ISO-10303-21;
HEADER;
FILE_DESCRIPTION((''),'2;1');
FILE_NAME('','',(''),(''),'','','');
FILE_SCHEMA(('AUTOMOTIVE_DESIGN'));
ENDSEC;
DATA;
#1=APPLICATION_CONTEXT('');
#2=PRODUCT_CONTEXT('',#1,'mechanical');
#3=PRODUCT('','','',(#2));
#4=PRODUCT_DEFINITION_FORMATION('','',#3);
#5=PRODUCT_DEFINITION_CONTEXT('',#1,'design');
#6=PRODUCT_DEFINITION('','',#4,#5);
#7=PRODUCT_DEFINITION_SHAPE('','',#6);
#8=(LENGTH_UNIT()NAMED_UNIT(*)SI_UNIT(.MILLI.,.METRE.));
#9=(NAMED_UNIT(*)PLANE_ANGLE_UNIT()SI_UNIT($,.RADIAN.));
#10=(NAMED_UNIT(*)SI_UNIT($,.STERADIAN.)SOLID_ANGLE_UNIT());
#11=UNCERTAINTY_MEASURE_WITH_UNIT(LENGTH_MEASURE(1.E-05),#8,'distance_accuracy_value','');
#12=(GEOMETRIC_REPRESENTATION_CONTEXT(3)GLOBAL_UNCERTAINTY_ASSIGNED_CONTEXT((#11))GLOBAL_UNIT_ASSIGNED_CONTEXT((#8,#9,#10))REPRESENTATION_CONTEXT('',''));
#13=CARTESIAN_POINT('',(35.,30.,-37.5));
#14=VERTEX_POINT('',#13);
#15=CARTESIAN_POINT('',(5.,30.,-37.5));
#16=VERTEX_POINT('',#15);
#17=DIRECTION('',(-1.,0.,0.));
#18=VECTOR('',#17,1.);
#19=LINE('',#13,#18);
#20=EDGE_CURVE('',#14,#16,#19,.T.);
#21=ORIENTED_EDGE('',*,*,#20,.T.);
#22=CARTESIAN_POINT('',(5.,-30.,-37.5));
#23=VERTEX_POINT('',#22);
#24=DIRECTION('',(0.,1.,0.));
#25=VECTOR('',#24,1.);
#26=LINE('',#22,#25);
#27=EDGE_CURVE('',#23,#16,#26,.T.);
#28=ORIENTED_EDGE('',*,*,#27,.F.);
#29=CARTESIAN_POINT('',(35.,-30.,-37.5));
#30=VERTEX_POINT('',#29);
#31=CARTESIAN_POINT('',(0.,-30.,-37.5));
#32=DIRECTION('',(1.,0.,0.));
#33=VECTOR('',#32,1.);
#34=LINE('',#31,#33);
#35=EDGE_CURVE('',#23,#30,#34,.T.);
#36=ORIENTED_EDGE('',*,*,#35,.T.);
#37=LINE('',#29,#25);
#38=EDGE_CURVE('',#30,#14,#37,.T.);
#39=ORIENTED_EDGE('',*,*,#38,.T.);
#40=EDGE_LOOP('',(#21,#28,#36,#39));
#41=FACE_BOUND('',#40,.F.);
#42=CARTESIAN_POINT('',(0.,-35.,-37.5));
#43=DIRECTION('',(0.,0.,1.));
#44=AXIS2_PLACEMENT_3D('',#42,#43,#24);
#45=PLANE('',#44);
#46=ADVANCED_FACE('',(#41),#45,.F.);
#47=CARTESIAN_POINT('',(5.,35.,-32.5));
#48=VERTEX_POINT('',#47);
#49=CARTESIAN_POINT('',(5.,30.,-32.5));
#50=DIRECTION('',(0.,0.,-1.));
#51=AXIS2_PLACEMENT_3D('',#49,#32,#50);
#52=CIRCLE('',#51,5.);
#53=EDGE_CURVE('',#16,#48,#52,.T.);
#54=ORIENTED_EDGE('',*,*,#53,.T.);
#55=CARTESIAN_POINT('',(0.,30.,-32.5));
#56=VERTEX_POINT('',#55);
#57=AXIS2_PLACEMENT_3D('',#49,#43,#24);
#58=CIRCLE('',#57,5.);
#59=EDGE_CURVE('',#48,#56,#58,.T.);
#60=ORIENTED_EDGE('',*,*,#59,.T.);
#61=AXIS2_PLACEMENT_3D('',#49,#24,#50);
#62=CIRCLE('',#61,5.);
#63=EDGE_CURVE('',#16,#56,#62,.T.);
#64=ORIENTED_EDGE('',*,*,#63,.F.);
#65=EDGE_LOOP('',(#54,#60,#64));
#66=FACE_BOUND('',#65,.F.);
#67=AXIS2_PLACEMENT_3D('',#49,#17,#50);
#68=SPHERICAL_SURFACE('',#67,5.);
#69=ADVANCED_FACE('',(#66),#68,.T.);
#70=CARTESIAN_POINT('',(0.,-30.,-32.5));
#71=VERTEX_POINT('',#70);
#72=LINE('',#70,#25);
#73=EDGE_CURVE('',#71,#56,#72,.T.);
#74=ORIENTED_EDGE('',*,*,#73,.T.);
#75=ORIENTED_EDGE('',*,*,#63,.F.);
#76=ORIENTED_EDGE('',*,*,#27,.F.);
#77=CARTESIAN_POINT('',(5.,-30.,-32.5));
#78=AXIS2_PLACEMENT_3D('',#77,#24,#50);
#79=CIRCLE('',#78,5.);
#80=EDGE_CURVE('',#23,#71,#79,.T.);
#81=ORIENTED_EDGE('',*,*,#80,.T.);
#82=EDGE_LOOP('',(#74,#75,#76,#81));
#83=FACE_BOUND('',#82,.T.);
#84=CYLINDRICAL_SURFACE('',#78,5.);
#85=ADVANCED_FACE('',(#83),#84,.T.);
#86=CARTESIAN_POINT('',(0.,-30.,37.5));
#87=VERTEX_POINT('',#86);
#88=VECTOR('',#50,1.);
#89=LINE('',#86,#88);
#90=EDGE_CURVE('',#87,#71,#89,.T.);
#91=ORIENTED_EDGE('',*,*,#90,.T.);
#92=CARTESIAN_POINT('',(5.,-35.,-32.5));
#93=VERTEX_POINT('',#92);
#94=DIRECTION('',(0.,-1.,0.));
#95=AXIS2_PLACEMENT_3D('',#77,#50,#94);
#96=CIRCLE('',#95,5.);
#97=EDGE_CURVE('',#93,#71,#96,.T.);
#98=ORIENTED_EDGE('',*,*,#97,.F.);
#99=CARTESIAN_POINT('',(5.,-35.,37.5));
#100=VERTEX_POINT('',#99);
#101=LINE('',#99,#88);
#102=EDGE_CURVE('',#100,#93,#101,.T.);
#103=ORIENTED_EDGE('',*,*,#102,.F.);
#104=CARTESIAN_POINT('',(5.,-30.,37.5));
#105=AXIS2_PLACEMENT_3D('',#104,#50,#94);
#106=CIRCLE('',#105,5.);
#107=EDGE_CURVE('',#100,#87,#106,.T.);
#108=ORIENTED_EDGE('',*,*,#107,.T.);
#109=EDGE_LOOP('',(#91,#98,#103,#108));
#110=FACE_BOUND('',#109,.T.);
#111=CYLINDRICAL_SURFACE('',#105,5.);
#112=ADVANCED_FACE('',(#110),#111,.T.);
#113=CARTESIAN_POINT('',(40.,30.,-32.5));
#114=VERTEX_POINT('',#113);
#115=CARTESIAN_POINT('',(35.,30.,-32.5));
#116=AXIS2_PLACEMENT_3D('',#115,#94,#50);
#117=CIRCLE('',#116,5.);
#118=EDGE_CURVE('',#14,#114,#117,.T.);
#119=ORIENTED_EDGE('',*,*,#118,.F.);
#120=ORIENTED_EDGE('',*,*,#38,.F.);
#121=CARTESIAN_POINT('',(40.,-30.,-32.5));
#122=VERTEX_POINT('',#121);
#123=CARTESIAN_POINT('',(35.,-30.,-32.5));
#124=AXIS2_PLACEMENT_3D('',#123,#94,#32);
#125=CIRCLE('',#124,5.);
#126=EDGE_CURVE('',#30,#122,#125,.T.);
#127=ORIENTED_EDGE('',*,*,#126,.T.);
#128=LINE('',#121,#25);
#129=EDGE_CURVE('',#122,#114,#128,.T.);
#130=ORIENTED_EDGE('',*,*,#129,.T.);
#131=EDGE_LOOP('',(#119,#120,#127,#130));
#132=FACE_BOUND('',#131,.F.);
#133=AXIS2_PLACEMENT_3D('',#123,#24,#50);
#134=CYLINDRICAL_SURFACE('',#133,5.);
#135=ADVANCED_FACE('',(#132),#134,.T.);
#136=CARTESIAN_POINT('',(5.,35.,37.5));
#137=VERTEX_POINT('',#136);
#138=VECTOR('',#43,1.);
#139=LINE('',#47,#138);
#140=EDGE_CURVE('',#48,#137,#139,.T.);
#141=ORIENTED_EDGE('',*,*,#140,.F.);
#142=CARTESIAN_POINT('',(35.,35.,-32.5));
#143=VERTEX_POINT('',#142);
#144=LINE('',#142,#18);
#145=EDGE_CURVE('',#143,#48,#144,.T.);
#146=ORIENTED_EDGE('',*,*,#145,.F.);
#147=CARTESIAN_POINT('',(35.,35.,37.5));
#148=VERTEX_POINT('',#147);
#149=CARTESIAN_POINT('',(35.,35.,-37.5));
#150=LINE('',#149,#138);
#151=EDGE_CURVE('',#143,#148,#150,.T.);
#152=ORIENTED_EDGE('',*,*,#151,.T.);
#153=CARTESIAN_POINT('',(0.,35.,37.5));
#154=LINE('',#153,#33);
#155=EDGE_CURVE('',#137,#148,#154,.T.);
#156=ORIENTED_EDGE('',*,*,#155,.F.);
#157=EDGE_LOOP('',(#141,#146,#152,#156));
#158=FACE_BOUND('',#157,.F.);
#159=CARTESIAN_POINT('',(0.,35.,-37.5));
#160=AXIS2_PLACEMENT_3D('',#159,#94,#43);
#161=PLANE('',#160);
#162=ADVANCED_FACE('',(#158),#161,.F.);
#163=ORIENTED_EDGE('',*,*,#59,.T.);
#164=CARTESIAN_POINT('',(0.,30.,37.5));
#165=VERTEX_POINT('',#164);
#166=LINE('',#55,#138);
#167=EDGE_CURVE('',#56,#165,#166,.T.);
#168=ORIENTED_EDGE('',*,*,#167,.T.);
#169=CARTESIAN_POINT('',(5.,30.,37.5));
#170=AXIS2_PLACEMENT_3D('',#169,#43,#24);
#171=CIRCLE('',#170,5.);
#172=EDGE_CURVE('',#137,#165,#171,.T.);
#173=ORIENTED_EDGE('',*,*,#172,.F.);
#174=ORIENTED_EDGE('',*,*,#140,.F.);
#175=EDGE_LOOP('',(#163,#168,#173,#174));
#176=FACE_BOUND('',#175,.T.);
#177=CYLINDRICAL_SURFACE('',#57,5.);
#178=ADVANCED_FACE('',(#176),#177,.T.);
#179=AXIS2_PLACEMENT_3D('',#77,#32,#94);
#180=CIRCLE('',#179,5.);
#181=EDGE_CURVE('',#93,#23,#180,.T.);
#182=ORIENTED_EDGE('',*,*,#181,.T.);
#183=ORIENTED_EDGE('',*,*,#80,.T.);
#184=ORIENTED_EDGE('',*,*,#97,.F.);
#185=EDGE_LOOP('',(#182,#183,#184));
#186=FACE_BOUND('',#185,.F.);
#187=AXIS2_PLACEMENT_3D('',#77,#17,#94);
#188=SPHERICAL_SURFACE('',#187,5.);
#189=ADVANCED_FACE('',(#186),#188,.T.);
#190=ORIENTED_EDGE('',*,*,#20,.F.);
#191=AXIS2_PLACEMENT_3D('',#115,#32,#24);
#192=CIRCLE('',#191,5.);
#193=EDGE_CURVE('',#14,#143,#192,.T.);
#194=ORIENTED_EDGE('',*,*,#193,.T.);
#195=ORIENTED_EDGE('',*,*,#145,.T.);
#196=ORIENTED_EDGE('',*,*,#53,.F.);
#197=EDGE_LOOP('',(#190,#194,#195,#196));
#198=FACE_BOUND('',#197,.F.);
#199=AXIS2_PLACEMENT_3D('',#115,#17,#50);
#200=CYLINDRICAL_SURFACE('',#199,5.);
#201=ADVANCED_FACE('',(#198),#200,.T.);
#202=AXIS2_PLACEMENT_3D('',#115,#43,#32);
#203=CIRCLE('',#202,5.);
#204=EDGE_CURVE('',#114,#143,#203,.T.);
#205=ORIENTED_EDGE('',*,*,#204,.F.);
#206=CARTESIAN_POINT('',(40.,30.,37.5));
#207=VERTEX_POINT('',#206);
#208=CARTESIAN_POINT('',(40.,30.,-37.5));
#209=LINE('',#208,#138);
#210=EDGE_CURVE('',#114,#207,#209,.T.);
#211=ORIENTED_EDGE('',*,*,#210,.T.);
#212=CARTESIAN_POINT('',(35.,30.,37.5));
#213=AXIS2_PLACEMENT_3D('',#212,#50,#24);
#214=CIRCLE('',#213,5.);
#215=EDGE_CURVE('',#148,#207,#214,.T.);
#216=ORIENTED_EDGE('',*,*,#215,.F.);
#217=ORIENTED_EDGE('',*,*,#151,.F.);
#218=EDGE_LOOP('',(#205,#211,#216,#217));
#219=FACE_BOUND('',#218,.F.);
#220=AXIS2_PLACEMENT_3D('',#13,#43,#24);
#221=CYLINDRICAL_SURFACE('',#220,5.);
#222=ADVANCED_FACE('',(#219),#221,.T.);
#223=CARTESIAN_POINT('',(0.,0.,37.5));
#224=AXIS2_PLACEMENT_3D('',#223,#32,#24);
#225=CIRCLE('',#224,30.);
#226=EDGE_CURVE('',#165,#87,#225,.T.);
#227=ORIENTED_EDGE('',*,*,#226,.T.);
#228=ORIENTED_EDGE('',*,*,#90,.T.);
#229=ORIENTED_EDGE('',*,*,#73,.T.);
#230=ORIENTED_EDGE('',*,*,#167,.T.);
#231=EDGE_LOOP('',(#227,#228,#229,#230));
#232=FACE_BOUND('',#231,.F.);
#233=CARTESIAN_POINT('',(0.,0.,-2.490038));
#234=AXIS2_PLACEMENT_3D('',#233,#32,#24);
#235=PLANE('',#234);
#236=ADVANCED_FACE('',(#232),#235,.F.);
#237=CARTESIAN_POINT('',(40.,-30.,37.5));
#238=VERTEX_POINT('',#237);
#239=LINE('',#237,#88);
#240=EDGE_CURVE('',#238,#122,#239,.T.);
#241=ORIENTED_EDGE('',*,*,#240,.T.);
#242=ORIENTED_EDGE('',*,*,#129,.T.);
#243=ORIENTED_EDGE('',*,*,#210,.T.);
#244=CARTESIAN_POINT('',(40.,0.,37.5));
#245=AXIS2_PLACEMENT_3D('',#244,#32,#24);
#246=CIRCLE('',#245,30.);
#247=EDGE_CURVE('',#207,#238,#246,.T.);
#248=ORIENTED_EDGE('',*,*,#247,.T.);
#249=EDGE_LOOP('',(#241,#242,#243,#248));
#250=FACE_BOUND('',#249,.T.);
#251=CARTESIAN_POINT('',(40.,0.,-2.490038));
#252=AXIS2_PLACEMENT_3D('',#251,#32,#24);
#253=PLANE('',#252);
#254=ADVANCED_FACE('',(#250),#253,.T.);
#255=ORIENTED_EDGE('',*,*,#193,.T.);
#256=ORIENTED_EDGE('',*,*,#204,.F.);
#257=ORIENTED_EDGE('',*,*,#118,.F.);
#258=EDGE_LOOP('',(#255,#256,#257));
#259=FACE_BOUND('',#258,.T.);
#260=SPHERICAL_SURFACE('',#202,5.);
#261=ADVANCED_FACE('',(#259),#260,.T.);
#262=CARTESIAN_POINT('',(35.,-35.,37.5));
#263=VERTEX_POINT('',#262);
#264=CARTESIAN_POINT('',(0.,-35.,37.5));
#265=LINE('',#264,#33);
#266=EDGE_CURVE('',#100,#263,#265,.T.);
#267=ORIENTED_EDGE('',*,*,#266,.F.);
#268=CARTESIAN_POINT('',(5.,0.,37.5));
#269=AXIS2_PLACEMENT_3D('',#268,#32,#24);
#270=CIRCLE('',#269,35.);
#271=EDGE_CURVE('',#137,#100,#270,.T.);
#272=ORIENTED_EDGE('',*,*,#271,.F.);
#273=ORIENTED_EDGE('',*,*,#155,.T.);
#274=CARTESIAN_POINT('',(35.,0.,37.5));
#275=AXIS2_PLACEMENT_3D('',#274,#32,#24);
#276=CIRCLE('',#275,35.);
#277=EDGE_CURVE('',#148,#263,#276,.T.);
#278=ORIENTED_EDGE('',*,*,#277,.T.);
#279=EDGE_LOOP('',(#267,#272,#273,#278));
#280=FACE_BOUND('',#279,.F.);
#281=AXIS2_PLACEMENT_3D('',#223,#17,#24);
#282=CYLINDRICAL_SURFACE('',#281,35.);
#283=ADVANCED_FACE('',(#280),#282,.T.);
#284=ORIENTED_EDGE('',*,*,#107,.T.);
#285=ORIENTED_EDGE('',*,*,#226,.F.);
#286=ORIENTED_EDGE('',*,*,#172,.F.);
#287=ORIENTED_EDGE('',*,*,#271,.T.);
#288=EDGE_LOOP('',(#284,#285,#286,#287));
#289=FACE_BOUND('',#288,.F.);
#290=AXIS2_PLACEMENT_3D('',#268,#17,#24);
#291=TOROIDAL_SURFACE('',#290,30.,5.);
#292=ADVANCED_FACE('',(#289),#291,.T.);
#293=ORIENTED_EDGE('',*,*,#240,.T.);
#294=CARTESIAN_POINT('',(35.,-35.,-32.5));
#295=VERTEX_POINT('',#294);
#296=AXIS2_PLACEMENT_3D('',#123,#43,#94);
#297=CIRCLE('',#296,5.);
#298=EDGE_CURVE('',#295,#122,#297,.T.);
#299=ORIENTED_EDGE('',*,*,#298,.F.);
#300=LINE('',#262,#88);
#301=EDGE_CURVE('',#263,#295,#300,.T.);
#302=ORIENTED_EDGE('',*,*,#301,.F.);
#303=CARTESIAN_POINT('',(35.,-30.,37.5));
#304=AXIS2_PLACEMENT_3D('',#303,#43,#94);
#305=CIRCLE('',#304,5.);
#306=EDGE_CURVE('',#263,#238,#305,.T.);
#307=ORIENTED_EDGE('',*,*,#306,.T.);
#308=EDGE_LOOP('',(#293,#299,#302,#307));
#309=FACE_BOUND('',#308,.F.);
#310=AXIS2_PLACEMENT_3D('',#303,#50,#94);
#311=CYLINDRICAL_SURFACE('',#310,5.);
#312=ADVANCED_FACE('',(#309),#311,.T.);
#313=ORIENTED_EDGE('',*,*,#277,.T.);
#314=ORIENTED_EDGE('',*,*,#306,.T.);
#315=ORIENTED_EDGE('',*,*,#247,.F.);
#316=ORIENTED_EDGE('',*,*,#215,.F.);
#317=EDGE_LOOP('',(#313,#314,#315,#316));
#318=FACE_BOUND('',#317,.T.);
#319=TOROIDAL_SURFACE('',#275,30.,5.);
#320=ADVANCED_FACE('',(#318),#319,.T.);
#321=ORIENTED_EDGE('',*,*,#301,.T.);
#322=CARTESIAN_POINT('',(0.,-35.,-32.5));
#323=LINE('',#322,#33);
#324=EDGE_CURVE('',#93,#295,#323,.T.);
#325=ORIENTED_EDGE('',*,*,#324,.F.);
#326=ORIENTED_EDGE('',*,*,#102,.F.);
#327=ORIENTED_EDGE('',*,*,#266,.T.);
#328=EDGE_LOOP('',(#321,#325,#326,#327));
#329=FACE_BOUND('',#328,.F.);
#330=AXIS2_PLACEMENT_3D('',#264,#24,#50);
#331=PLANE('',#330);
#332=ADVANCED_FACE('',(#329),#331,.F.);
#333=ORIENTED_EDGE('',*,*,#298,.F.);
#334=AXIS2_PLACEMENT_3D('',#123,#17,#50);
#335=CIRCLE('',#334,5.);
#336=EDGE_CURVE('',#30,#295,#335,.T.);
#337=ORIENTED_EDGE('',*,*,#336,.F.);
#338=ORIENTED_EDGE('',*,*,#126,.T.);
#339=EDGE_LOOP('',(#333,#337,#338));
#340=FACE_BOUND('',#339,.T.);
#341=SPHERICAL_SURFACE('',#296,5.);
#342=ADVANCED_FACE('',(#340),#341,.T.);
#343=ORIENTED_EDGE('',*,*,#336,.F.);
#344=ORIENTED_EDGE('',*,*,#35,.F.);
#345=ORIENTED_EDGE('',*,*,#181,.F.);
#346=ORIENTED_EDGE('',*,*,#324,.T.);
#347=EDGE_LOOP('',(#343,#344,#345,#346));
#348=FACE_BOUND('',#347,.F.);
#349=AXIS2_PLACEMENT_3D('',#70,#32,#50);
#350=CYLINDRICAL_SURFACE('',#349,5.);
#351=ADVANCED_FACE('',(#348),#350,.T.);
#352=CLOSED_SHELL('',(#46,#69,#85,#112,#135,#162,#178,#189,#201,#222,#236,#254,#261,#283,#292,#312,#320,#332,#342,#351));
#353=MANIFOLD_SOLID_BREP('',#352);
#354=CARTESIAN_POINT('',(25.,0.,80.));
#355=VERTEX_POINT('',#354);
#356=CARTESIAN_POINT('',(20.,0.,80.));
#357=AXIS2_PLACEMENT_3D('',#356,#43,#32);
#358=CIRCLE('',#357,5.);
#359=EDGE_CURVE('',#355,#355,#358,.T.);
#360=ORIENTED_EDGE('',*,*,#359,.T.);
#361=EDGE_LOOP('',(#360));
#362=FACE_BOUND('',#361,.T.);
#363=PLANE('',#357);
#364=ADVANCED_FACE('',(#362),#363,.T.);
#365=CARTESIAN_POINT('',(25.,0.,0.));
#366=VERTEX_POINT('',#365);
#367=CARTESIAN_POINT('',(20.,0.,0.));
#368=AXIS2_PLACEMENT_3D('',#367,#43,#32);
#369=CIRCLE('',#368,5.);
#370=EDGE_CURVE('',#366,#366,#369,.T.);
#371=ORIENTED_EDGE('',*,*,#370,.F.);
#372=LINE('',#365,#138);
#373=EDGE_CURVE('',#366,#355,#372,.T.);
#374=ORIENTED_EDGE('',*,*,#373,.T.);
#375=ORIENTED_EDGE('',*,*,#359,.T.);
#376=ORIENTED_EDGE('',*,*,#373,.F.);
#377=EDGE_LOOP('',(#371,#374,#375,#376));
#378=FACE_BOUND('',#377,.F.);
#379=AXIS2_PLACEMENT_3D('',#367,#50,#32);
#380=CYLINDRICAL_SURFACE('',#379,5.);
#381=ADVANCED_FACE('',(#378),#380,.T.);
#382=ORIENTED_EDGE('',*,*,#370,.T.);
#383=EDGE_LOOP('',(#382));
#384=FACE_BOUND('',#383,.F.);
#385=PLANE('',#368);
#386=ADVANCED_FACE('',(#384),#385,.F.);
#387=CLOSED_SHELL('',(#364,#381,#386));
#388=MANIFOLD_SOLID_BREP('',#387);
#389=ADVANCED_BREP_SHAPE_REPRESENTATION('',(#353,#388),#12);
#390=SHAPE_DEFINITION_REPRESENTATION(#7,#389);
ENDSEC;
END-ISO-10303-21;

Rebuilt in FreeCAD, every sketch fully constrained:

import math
import FreeCAD as App
import Part
import Sketcher


def edges_at(feature, points):
    """Names of the edges that pass closest to the given points."""
    edges = feature.Shape.Edges
    near = lambda p: min(range(len(edges)), key=lambda i: edges[i].distToShape(Part.Vertex(*p))[0])
    return sorted({f"Edge{near(p) + 1}" for p in points})

doc = App.newDocument("Part")
body = doc.addObject("PartDesign::Body", "Body")

sketch1 = doc.addObject("Sketcher::SketchObject", "Sketch")
body.addObject(sketch1)
sketch1.AttachmentSupport = (doc.YZ_Plane, [""])
sketch1.MapMode = "FlatFace"
sketch1.addGeometry(Part.LineSegment(App.Vector(-35, -37.5, 0), App.Vector(35, -37.5, 0)), False)
sketch1.addGeometry(Part.LineSegment(App.Vector(35, -37.5, 0), App.Vector(35, 37.5, 0)), False)
sketch1.addGeometry(Part.ArcOfCircle(Part.Circle(App.Vector(0, 37.5, 0), App.Vector(0, 0, 1), 35), math.radians(0), math.radians(180)), False)
sketch1.addGeometry(Part.LineSegment(App.Vector(-35, 37.5, 0), App.Vector(-35, -37.5, 0)), False)
sketch1.addConstraint(Sketcher.Constraint("Coincident", 0, 2, 1, 1))
sketch1.addConstraint(Sketcher.Constraint("Tangent", 1, 2, 2, 1))
sketch1.addConstraint(Sketcher.Constraint("Tangent", 2, 2, 3, 1))
sketch1.addConstraint(Sketcher.Constraint("Coincident", 3, 2, 0, 1))
sketch1.addConstraint(Sketcher.Constraint("Horizontal", 0))
sketch1.addConstraint(Sketcher.Constraint("Vertical", 1))
sketch1.addConstraint(Sketcher.Constraint("Vertical", 3))
sketch1.addConstraint(Sketcher.Constraint("Symmetric", 0, 2, 2, 2, -1, 1))
sketch1.addConstraint(Sketcher.Constraint("Radius", 2, 35.0))
sketch1.addConstraint(Sketcher.Constraint("DistanceY", 1, 1, 1, 2, 75.0))
pad1 = doc.addObject("PartDesign::Pad", "Pad")
body.addObject(pad1)
pad1.Profile = sketch1
pad1.Length = 40
doc.recompute()

fillet = doc.addObject("PartDesign::Fillet", "Fillet")
body.addObject(fillet)
fillet.Base = (pad1, edges_at(pad1, [(40, -35, 0)]))
fillet.Radius = 5
doc.recompute()

fillet2 = doc.addObject("PartDesign::Fillet", "Fillet001")
body.addObject(fillet2)
fillet2.Base = (fillet, edges_at(fillet, [(17.5, -35, -37.5)]))
fillet2.Radius = 5
doc.recompute()

fillet3 = doc.addObject("PartDesign::Fillet", "Fillet002")
body.addObject(fillet3)
fillet3.Base = (fillet2, edges_at(fillet2, [(0, 0, -37.5)]))
fillet3.Radius = 5
body2 = doc.addObject("PartDesign::Body", "Body001")

sketch2 = doc.addObject("Sketcher::SketchObject", "Sketch001")
body2.addObject(sketch2)
sketch2.AttachmentSupport = (doc.getObject("XY_Plane001"), [""])
sketch2.MapMode = "FlatFace"
sketch2.addGeometry(Part.Circle(App.Vector(20, 0, 0), App.Vector(0, 0, 1), 5), False)
sketch2.addConstraint(Sketcher.Constraint("PointOnObject", 0, 3, -1))
sketch2.addConstraint(Sketcher.Constraint("Diameter", 0, 10.0))
sketch2.addConstraint(Sketcher.Constraint("DistanceX", -1, 1, 0, 3, 20.0))
pad2 = doc.addObject("PartDesign::Pad", "Pad001")
body2.addObject(pad2)
pad2.Profile = sketch2
pad2.Length = 80

doc.recompute()
